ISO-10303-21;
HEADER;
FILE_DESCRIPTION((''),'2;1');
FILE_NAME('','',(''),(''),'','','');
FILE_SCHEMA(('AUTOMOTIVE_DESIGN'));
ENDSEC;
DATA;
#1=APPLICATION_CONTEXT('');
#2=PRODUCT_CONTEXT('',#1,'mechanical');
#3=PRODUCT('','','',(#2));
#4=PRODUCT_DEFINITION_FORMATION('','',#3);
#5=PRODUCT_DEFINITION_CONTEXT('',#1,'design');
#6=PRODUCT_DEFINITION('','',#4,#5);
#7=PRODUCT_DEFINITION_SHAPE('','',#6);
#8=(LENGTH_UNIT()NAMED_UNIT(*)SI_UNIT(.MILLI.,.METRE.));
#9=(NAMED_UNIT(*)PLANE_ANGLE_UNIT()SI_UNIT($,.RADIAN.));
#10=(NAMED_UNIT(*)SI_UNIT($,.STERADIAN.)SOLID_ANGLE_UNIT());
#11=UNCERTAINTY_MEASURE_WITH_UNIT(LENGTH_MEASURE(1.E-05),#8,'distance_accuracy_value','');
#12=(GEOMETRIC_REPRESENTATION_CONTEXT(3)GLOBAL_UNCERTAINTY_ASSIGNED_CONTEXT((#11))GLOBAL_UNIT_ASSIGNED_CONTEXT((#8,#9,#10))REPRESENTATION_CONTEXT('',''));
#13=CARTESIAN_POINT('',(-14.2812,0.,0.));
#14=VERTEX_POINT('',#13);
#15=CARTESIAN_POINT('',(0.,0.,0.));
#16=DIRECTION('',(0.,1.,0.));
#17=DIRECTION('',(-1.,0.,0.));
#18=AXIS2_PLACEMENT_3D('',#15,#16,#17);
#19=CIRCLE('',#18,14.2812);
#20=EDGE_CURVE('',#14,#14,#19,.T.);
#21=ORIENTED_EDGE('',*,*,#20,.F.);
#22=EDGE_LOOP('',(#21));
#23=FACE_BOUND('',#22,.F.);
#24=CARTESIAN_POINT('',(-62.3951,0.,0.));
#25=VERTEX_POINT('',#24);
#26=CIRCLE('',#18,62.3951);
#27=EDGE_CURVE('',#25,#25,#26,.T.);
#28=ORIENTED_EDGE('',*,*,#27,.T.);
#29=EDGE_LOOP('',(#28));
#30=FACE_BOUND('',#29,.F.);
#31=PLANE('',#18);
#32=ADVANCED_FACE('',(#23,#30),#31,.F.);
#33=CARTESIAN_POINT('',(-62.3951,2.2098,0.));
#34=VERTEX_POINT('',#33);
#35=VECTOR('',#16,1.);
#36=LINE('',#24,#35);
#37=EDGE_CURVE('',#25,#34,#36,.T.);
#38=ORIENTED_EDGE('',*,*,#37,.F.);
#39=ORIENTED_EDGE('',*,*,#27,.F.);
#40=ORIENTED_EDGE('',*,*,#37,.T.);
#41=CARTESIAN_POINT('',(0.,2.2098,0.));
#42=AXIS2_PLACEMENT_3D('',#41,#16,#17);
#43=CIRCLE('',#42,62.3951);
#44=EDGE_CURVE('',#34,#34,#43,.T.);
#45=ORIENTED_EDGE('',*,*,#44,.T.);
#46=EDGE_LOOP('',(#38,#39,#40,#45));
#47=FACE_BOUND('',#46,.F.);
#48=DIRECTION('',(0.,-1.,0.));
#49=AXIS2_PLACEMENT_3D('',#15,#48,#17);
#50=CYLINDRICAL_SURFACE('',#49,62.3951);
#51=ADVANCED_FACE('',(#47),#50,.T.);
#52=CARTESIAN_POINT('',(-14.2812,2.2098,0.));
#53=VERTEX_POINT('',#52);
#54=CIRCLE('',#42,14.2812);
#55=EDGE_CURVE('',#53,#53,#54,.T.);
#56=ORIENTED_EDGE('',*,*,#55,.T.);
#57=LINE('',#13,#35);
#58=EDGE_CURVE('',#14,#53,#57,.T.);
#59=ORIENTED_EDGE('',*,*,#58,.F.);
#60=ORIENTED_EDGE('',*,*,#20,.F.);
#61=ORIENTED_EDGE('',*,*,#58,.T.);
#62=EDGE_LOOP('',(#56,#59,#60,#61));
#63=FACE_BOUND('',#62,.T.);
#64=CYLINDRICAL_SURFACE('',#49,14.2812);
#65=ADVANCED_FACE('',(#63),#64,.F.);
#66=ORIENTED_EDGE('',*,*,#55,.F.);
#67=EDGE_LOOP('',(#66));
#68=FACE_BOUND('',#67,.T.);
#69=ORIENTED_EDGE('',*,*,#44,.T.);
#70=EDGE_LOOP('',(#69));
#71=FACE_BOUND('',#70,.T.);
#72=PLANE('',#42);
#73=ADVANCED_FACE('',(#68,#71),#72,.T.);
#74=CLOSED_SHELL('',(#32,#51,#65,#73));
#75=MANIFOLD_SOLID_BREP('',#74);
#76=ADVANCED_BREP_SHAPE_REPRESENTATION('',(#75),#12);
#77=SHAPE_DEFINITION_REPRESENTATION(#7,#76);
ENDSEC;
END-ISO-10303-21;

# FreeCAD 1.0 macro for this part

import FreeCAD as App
import Part
import Sketcher

V = App.Vector
Q = App.Units.Quantity

doc = App.newDocument("Part")
body = doc.addObject("PartDesign::Body", "Body")

# Sketch on XZ plane
sketch1 = doc.addObject("Sketcher::SketchObject", "Sketch")
body.addObject(sketch1)
sketch1.AttachmentSupport = (doc.XZ_Plane, [""])
sketch1.MapMode = "FlatFace"
sketch1.addGeometry(Part.Circle(V(0, 0, 0), V(0, 0, 1), 62), False)
sketch1.addGeometry(Part.Circle(V(0, 0, 0), V(0, 0, 1), 14), False)
sketch1.addConstraint(Sketcher.Constraint("Coincident", 0, 3, -1, 1))
sketch1.addConstraint(Sketcher.Constraint("Coincident", 1, 3, -1, 1))
sketch1.addConstraint(Sketcher.Constraint("Diameter", 0, Q("4.913 in")))
sketch1.addConstraint(Sketcher.Constraint("Diameter", 1, Q("1.1245 in")))
pad1 = doc.addObject("PartDesign::Pad", "Pad")
body.addObject(pad1)
pad1.Profile = sketch1
pad1.Length = Q("0.087 in")
pad1.Reversed = True

doc.recompute()
